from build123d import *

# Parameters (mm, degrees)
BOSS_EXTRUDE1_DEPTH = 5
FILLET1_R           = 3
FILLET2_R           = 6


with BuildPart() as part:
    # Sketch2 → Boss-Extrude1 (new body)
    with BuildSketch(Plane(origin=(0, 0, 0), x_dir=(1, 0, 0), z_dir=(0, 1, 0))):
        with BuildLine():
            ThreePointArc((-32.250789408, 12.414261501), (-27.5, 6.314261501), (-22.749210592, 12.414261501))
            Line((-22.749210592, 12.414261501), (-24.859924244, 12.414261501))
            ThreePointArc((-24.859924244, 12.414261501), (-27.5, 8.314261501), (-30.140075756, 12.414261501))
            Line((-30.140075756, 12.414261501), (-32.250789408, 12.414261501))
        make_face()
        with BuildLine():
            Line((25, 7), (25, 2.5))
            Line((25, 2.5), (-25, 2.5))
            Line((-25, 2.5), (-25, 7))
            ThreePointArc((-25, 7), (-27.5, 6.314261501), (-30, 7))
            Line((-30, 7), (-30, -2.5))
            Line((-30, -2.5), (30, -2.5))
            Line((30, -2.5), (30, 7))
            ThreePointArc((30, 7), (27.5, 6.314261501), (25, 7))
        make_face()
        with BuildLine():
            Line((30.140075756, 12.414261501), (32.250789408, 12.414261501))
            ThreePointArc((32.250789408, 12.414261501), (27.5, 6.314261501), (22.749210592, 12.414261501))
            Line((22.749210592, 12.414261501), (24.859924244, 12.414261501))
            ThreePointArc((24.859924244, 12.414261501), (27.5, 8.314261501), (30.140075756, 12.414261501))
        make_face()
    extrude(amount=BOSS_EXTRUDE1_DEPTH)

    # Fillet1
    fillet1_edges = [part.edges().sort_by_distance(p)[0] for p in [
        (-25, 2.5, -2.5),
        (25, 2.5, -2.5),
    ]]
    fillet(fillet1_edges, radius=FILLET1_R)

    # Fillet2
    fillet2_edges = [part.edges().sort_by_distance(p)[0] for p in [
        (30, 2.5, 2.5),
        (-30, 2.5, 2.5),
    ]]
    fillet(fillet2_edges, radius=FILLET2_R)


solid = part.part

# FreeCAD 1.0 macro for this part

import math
import FreeCAD as App
import Part
import Sketcher
from FreeCAD import Vector
Q = App.Units.Quantity


def edges_at(feature, points):
    """Names of the edges that pass closest to the given points."""
    edges = feature.Shape.Edges
    near = lambda p: min(range(len(edges)), key=lambda i: edges[i].distToShape(Part.Vertex(*p))[0])
    return sorted({f"Edge{near(p) + 1}" for p in points})

doc = App.newDocument("Part")
body = doc.addObject("PartDesign::Body", "Body")

sketch1 = body.newObject("Sketcher::SketchObject", "Sketch")
sketch1.AttachmentSupport = (doc.getObject("XZ_Plane"), [""])
sketch1.MapMode = "FlatFace"
sketch1.addGeometry([
    Part.ArcOfCircle(Part.Circle(Vector(-27.5, -11.2, 0), Vector(0, 0, 1), 4.9), math.radians(121), math.radians(194)),
    Part.LineSegment(Vector(-30, -7, 0), Vector(-30, 2.5, 0)),
    Part.LineSegment(Vector(-30, 2.5, 0), Vector(30, 2.5, 0)),
    Part.LineSegment(Vector(30, 2.5, 0), Vector(30, -7, 0)),
    Part.ArcOfCircle(Part.Circle(Vector(27.5, -11.2, 0), Vector(0, 0, 1), 4.9), math.radians(-14), math.radians(59)),
    Part.LineSegment(Vector(32.3, -12.4, 0), Vector(30.1, -12.4, 0)),
    Part.ArcOfCircle(Part.Circle(Vector(27.5, -11.2, 0), Vector(0, 0, 1), 2.9), math.radians(-24), math.radians(204)),
    Part.LineSegment(Vector(24.9, -12.4, 0), Vector(22.7, -12.4, 0)),
    Part.ArcOfCircle(Part.Circle(Vector(27.5, -11.2, 0), Vector(0, 0, 1), 4.9), math.radians(121), math.radians(194)),
    Part.LineSegment(Vector(25, -7, 0), Vector(25, -2.5, 0)),
    Part.LineSegment(Vector(25, -2.5, 0), Vector(-25, -2.5, 0)),
    Part.LineSegment(Vector(-25, -2.5, 0), Vector(-25, -7, 0)),
    Part.ArcOfCircle(Part.Circle(Vector(-27.5, -11.2, 0), Vector(0, 0, 1), 4.9), math.radians(-14), math.radians(59)),
    Part.LineSegment(Vector(-22.7, -12.4, 0), Vector(-24.9, -12.4, 0)),
    Part.ArcOfCircle(Part.Circle(Vector(-27.5, -11.2, 0), Vector(0, 0, 1), 2.9), math.radians(-24), math.radians(204)),
    Part.LineSegment(Vector(-30.1, -12.4, 0), Vector(-32.3, -12.4, 0)),
], False)
sketch1.addConstraint([
    Sketcher.Constraint("Coincident", 0, 1, 1, 1),
    Sketcher.Constraint("Coincident", 1, 2, 2, 1),
    Sketcher.Constraint("Coincident", 2, 2, 3, 1),
    Sketcher.Constraint("Coincident", 3, 2, 4, 2),
    Sketcher.Constraint("Coincident", 4, 1, 5, 1),
    Sketcher.Constraint("Coincident", 5, 2, 6, 1),
    Sketcher.Constraint("Coincident", 6, 2, 7, 1),
    Sketcher.Constraint("Coincident", 7, 2, 8, 2),
    Sketcher.Constraint("Coincident", 8, 1, 9, 1),
    Sketcher.Constraint("Coincident", 9, 2, 10, 1),
    Sketcher.Constraint("Coincident", 10, 2, 11, 1),
    Sketcher.Constraint("Coincident", 11, 2, 12, 2),
    Sketcher.Constraint("Coincident", 12, 1, 13, 1),
    Sketcher.Constraint("Coincident", 13, 2, 14, 1),
    Sketcher.Constraint("Coincident", 14, 2, 15, 1),
    Sketcher.Constraint("Coincident", 15, 2, 0, 2),
    Sketcher.Constraint("Vertical", 1),
    Sketcher.Constraint("Horizontal", 2),
    Sketcher.Constraint("Vertical", 3),
    Sketcher.Constraint("Horizontal", 5),
    Sketcher.Constraint("Horizontal", 7),
    Sketcher.Constraint("Vertical", 9),
    Sketcher.Constraint("Horizontal", 10),
    Sketcher.Constraint("Vertical", 11),
    Sketcher.Constraint("Horizontal", 13),
    Sketcher.Constraint("Horizontal", 15),
    Sketcher.Constraint("Coincident", 6, 3, 4, 3),
    Sketcher.Constraint("Coincident", 8, 3, 4, 3),
    Sketcher.Constraint("Coincident", 12, 3, 0, 3),
    Sketcher.Constraint("Coincident", 14, 3, 0, 3),
    Sketcher.Constraint("Equal", 0, 4),
    Sketcher.Constraint("Equal", 4, 8),
    Sketcher.Constraint("Equal", 8, 12),
    Sketcher.Constraint("Equal", 6, 14),
    Sketcher.Constraint("Symmetric", 0, 3, 4, 3, -2),
    Sketcher.Constraint("Horizontal", 0, 1, 3, 2),
    Sketcher.Constraint("Horizontal", 5, 2, 6, 2),
    Sketcher.Constraint("Horizontal", 3, 2, 8, 1),
    Sketcher.Constraint("Horizontal", 8, 1, 11, 2),
    Sketcher.Constraint("Horizontal", 7, 2, 12, 1),
    Sketcher.Constraint("Horizontal", 13, 2, 14, 2),
    Sketcher.Constraint("Radius", 0, Q("4.9 mm")),
    Sketcher.Constraint("Radius", 6, Q("2.9 mm")),
    Sketcher.Constraint("DistanceX", 2, 1, 2, 2, Q("60 mm")),
    Sketcher.Constraint("DistanceX", 10, 2, 10, 1, Q("50 mm")),
    Sketcher.Constraint("DistanceY", 1, 1, 1, 2, Q("9.5 mm")),
    Sketcher.Constraint("DistanceY", 9, 1, 9, 2, Q("4.5 mm")),
    Sketcher.Constraint("DistanceY", 0, 1, -1, 1, Q("7 mm")),
    Sketcher.Constraint("DistanceY", 4, 1, 4, 3, Q("1.2 mm")),
])
pad1 = body.newObject("PartDesign::Pad", "Pad")
pad1.Profile = sketch1
pad1.Length = 5
pad1.Reversed = True
doc.recompute()

fillet = body.newObject("PartDesign::Fillet", "Fillet")
fillet.Base = (pad1, edges_at(pad1, [(-25, 2.5, -2.5), (25, 2.5, -2.5)]))
fillet.Radius = 3
doc.recompute()

fillet2 = body.newObject("PartDesign::Fillet", "Fillet001")
fillet2.Base = (fillet, edges_at(fillet, [(30, 2.5, 2.5), (-30, 2.5, 2.5)]))
fillet2.Radius = 6

doc.recompute()
